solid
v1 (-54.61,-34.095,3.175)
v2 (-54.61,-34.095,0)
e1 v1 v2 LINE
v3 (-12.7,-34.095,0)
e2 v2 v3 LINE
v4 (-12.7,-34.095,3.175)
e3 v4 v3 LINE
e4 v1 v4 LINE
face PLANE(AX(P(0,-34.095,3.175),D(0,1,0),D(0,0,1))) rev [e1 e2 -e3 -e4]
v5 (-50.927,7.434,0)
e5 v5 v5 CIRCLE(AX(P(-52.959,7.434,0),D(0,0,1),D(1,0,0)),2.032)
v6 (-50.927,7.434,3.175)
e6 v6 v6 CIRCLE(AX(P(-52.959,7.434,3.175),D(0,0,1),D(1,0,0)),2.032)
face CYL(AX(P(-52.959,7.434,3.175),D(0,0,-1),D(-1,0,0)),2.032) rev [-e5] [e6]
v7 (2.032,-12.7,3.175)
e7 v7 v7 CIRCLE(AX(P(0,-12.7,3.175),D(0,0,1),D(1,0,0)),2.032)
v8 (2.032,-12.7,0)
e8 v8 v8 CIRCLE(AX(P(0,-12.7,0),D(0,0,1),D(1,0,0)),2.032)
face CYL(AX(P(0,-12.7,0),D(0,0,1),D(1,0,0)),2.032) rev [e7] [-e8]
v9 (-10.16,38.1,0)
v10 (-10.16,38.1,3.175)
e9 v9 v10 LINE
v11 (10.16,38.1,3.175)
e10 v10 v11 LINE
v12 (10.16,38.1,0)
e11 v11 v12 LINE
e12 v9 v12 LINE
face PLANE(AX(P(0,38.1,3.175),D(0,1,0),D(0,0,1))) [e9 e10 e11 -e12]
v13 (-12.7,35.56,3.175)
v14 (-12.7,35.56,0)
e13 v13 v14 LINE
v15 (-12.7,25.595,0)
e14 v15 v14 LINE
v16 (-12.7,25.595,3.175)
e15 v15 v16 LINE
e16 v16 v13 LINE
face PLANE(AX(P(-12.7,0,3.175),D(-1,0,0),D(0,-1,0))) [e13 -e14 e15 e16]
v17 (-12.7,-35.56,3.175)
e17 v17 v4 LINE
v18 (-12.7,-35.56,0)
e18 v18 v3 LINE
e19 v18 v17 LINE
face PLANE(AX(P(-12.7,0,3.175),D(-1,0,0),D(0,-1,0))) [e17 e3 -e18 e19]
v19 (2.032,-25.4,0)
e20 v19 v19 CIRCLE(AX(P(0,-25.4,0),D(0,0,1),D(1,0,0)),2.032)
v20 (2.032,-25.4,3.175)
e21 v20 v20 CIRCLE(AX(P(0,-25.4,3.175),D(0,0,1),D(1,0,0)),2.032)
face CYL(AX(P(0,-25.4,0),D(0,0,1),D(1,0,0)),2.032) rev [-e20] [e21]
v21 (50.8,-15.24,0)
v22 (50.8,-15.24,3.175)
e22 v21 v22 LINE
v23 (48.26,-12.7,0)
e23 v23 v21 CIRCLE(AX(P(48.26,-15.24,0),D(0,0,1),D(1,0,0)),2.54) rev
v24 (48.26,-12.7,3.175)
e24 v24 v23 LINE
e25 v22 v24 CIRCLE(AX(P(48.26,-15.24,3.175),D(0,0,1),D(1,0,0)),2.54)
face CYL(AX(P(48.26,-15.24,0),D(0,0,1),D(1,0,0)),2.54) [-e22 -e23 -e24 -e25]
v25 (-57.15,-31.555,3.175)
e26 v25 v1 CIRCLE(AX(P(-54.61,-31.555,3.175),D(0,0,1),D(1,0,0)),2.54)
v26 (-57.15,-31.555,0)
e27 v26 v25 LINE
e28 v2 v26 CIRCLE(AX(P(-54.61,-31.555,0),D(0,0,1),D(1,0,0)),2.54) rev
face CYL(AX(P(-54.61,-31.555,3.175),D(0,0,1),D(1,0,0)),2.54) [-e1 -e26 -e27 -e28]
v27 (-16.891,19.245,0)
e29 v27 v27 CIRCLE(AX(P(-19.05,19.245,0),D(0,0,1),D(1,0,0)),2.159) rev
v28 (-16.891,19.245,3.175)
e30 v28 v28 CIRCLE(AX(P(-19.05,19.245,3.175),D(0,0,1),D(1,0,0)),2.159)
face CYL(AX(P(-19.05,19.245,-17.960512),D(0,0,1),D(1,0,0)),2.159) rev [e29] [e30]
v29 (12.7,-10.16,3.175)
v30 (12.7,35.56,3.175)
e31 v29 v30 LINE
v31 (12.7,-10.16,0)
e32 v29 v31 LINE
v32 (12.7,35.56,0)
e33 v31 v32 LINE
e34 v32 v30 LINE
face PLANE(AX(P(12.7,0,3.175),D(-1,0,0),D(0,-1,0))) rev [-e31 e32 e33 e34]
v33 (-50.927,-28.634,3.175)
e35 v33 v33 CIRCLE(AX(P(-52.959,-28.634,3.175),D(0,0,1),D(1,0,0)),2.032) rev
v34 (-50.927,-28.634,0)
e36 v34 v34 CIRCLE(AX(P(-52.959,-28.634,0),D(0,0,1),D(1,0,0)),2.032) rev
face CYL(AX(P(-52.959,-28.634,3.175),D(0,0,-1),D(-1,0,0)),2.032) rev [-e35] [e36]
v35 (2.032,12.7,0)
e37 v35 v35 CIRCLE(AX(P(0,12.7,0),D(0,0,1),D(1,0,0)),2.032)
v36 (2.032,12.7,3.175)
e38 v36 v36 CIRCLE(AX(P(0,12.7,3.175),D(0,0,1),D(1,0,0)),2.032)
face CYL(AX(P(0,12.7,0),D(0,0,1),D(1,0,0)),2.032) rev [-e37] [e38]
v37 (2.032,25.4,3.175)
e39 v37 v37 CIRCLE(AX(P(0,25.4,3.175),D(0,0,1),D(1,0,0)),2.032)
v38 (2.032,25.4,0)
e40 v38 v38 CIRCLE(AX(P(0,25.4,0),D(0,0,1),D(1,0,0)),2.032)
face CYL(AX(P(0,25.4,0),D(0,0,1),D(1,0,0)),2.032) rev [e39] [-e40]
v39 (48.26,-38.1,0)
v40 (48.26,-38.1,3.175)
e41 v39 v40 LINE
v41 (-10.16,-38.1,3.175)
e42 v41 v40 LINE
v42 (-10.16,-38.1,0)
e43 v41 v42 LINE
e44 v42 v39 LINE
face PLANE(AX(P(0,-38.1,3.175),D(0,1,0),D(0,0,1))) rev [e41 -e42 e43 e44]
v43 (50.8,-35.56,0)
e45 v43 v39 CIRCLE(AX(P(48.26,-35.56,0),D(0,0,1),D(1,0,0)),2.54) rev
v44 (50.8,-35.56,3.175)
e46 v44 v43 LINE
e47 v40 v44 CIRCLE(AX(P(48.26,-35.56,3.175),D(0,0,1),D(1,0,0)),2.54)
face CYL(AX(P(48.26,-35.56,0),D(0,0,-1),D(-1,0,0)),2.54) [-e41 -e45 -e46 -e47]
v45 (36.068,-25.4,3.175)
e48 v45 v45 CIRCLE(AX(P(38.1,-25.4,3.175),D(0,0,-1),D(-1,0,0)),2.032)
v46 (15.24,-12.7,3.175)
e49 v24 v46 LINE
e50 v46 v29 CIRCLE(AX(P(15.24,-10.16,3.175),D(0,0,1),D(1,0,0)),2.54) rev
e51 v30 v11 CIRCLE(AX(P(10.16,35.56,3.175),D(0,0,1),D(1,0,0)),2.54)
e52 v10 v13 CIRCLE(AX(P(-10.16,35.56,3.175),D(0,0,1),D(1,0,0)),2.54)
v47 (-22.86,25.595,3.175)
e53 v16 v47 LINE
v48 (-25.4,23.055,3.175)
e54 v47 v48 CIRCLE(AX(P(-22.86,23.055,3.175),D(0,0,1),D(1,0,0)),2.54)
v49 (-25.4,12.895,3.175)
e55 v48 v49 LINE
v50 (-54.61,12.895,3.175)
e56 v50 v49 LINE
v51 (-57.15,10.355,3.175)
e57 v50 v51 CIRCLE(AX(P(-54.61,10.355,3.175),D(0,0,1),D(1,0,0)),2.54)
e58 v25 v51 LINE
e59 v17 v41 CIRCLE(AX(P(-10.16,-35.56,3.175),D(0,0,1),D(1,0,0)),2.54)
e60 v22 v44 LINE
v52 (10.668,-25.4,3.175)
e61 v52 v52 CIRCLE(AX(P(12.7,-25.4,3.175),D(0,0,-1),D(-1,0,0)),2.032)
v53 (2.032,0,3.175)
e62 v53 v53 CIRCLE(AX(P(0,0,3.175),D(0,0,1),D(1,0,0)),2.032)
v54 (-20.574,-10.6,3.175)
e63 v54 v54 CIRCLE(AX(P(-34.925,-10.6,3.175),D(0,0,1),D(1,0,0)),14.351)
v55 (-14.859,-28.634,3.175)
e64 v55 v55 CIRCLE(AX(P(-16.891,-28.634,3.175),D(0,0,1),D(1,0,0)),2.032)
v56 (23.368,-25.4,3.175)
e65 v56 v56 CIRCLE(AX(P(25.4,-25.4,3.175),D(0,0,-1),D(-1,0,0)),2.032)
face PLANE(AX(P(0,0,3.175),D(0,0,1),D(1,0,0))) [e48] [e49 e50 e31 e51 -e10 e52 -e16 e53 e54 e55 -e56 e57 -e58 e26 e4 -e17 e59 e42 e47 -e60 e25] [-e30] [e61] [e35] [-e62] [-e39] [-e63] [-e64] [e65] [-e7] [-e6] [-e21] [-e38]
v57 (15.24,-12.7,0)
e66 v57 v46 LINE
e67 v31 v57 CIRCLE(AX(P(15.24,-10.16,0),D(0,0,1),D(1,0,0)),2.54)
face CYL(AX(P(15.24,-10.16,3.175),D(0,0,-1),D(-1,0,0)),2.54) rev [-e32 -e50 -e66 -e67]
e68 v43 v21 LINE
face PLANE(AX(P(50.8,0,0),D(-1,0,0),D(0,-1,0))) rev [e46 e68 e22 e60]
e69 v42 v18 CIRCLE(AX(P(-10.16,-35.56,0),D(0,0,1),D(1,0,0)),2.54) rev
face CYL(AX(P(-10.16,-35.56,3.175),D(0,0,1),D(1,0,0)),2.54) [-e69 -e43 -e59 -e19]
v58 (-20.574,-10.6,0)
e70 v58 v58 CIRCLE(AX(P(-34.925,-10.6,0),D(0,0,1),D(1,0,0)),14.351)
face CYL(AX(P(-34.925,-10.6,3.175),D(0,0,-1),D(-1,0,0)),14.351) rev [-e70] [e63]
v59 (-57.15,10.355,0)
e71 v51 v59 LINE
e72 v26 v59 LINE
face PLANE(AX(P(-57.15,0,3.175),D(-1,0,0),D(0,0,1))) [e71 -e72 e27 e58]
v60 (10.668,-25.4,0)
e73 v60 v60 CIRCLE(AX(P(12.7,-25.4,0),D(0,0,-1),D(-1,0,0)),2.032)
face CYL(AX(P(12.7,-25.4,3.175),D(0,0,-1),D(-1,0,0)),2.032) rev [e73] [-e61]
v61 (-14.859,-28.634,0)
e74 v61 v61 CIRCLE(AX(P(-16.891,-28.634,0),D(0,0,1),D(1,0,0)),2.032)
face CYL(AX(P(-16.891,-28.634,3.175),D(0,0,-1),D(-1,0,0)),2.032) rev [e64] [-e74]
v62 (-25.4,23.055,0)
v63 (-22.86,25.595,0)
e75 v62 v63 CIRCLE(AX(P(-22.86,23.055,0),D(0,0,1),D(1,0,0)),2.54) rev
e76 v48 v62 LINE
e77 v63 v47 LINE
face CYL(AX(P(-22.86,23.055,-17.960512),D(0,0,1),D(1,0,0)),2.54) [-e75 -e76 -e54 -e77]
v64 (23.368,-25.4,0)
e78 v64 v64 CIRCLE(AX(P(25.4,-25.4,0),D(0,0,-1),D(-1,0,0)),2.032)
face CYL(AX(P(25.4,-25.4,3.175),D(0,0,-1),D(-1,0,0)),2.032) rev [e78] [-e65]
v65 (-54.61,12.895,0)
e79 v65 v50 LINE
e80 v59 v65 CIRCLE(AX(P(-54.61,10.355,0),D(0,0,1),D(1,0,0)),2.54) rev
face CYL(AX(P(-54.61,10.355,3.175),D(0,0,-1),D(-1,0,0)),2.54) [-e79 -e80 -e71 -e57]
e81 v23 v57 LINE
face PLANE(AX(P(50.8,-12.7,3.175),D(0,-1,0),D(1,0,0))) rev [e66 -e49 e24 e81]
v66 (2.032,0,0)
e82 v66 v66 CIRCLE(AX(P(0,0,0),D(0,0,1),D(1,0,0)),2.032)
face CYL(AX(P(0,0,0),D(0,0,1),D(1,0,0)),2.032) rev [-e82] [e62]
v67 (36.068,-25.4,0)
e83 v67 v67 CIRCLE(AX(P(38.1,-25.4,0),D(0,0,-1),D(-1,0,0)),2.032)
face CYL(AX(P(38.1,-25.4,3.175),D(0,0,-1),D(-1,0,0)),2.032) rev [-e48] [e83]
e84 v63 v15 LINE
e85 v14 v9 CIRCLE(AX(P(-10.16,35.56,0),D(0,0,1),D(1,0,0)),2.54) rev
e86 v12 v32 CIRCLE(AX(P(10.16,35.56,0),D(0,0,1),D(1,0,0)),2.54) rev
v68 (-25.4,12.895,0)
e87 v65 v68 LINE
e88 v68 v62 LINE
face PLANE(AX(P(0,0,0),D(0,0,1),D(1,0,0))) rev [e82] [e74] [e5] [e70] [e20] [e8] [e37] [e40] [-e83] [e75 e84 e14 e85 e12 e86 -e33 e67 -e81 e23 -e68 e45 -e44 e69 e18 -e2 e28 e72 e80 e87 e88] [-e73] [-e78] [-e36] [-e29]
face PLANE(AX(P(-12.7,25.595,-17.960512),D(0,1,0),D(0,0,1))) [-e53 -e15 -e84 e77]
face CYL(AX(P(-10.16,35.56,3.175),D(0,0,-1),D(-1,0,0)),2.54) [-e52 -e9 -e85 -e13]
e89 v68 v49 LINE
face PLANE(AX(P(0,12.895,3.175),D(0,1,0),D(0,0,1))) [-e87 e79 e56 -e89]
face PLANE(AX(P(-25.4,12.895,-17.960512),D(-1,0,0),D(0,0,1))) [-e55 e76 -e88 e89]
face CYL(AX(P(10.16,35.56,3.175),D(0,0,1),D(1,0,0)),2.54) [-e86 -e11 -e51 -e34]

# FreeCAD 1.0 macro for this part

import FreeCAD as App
import Part
import Sketcher

V = App.Vector
Q = App.Units.Quantity


def edges_at(feature, points):
    """Names of the edges that pass closest to the given points."""
    edges = feature.Shape.Edges
    near = lambda p: min(range(len(edges)), key=lambda i: edges[i].distToShape(Part.Vertex(*p))[0])
    return sorted({f"Edge{near(p) + 1}" for p in points})


def add_polygon(sketch, points):
    """Adds a closed chain of lines whose ends are joined by coincident constraints."""
    first, n = sketch.GeometryCount, len(points)
    for a, b in zip(points, points[1:] + points[:1]):
        sketch.addGeometry(Part.LineSegment(App.Vector(*a, 0), App.Vector(*b, 0)), False)
    for i in range(n):
        sketch.addConstraint(Sketcher.Constraint("Coincident", first + i, 2, first + (i + 1) % n, 1))

doc = App.newDocument("Part")
params = doc.addObject("Spreadsheet::Sheet", "Params")
for row, (alias, value) in enumerate([
    ("sketch1_diameter", "0.16 in"),
    ("sketch1_diameter2", "1.13 in"),
    ("sketch1_width", "1 in"),
    ("sketch1_height", "3 in"),
    ("sketch1_width2", "1.75 in"),
    ("pad1_length", "0.125 in"),
    ("sketch2_diameter", "0.16 in"),
    ("sketch3_width", "1 in"),
    ("sketch3_height", "0.125 in"),
    ("pad2_length", "1.5 in"),
    ("sketch4_diameter", "0.16 in"),
    ("fillet_radius", "0.1 in"),
    ("sketch5_diameter", "0.17 in"),
    ("sketch5_width", "0.5 in"),
    ("pad3_length", "0.125 in"),
    ("fillet2_radius", "0.1 in"),
], start=1):
    params.set(f"A{row}", alias)
    params.set(f"B{row}", "=" + value)
    params.setAlias(f"B{row}", alias)

body = doc.addObject("PartDesign::Body", "Body")

# Sketch on XY plane
sketch1 = body.newObject("Sketcher::SketchObject", "Sketch")
sketch1.AttachmentSupport = (doc.getObject("XY_Plane"), [""])
sketch1.MapMode = "FlatFace"
add_polygon(sketch1, [(-57.1, -34.1), (-12.7, -34.1), (-12.7, -38.1), (12.7, -38.1), (12.7, 38.1), (-12.7, 38.1), (-12.7, 12.9), (-57.1, 12.9)])  # lines 0-7
sketch1.addGeometry(Part.Circle(V(-53, -28.6, 0), V(0, 0, 1), 2), False)  # 8
sketch1.addGeometry(Part.Circle(V(-16.9, -28.6, 0), V(0, 0, 1), 2), False)  # 9
sketch1.addGeometry(Part.Circle(V(-53, 7.4, 0), V(0, 0, 1), 2), False)  # 10
sketch1.addGeometry(Part.Circle(V(-34.9, -10.6, 0), V(0, 0, 1), 14.4), False)  # 11
sketch1.addConstraint([
    Sketcher.Constraint("Horizontal", 0),
    Sketcher.Constraint("Vertical", 1),
    Sketcher.Constraint("Horizontal", 2),
    Sketcher.Constraint("Vertical", 3),
    Sketcher.Constraint("Horizontal", 4),
    Sketcher.Constraint("Vertical", 5),
    Sketcher.Constraint("Horizontal", 6),
    Sketcher.Constraint("Vertical", 7),
    Sketcher.Constraint("Equal", 8, 9),
    Sketcher.Constraint("Equal", 9, 10),
    Sketcher.Constraint("Symmetric", 1, 2, 3, 2, -1, 1),
    Sketcher.Constraint("Horizontal", 8, 3, 9, 3),
    Sketcher.Constraint("Vertical", 8, 3, 10, 3),
    Sketcher.Constraint("Vertical", 1, 2, 4, 2),
    Sketcher.Constraint("Diameter", 8, Q("0.16 in")),
    Sketcher.Constraint("Diameter", 11, Q("1.13 in")),
    Sketcher.Constraint("DistanceX", 2, 1, 2, 2, Q("1 in")),
    Sketcher.Constraint("DistanceY", 3, 1, 3, 2, Q("3 in")),
    Sketcher.Constraint("DistanceX", 0, 1, 0, 2, Q("1.75 in")),
    Sketcher.Constraint("DistanceY", 7, 2, 7, 1, Q("1.85 in")),
    Sketcher.Constraint("DistanceX", 8, 3, 9, 3, Q("1.42 in")),
    Sketcher.Constraint("DistanceY", 8, 3, 10, 3, Q("1.42 in")),
    Sketcher.Constraint("DistanceX", 11, 3, 9, 3, Q("0.71 in")),
    Sketcher.Constraint("DistanceY", 9, 3, 11, 3, Q("0.71 in")),
    Sketcher.Constraint("DistanceX", 8, 3, -1, 1, Q("2.085 in")),
    Sketcher.Constraint("DistanceY", 0, 2, 9, 3, Q("0.215 in")),
    Sketcher.Constraint("DistanceY", 1, 2, 1, 1, Q("4.005 mm")),
])
sketch1.setExpression("Constraints[22]", "Params.sketch1_diameter")
sketch1.setExpression("Constraints[23]", "Params.sketch1_diameter2")
sketch1.setExpression("Constraints[24]", "Params.sketch1_width")
sketch1.setExpression("Constraints[25]", "Params.sketch1_height")
sketch1.setExpression("Constraints[26]", "Params.sketch1_width2")
pad1 = body.newObject("PartDesign::Pad", "Pad")
pad1.Profile = sketch1
pad1.setExpression("Length", "Params.pad1_length")

# Sketch on XY plane
sketch2 = body.newObject("Sketcher::SketchObject", "Sketch001")
sketch2.AttachmentSupport = (doc.getObject("XY_Plane"), [""])
sketch2.MapMode = "FlatFace"
sketch2.AttachmentOffset = App.Placement(V(0, 0, 0.125 * 25.4), App.Rotation())
sketch2.addGeometry([
    Part.Circle(V(0, 0, 0), V(0, 0, 1), 2),  # 0
    Part.Circle(V(0, 12.7, 0), V(0, 0, 1), 2),  # 1
    Part.Circle(V(0, 25.4, 0), V(0, 0, 1), 2),  # 2
    Part.Circle(V(0, -12.7, 0), V(0, 0, 1), 2),  # 3
    Part.Circle(V(0, -25.4, 0), V(0, 0, 1), 2),  # 4
], False)
sketch2.addConstraint([
    Sketcher.Constraint("Coincident", 0, 3, -1, 1),
    Sketcher.Constraint("Equal", 0, 1),
    Sketcher.Constraint("Equal", 1, 2),
    Sketcher.Constraint("Equal", 2, 3),
    Sketcher.Constraint("Equal", 3, 4),
    Sketcher.Constraint("Symmetric", 1, 3, 3, 3, -1, 1),
    Sketcher.Constraint("Symmetric", 2, 3, 4, 3, -1, 1),
    Sketcher.Constraint("PointOnObject", 1, 3, -2),
    Sketcher.Constraint("PointOnObject", 2, 3, -2),
    Sketcher.Constraint("Diameter", 0, Q("0.16 in")),
    Sketcher.Constraint("DistanceY", -1, 1, 2, 3, Q("1 in")),
    Sketcher.Constraint("DistanceY", 3, 3, 1, 3, Q("1 in")),
])
sketch2.setExpression("Constraints[9]", "Params.sketch2_diameter")
pocket1 = body.newObject("PartDesign::Pocket", "Pocket")
pocket1.Profile = sketch2
pocket1.Type = "ThroughAll"

# Sketch on YZ plane
sketch3 = body.newObject("Sketcher::SketchObject", "Sketch002")
sketch3.AttachmentSupport = (doc.getObject("YZ_Plane"), [""])
sketch3.MapMode = "FlatFace"
sketch3.AttachmentOffset = App.Placement(V(0, 0, 0.5 * 25.4), App.Rotation())
add_polygon(sketch3, [(-12.7, 3.2), (-38.1, 3.2), (-38.1, 0), (-12.7, 0)])  # lines 0-3
sketch3.addConstraint([
    Sketcher.Constraint("Horizontal", 0),
    Sketcher.Constraint("Vertical", 1),
    Sketcher.Constraint("Horizontal", 2),
    Sketcher.Constraint("Vertical", 3),
    Sketcher.Constraint("PointOnObject", 1, 2, -1),
    Sketcher.Constraint("DistanceX", 0, 2, 0, 1, Q("1 in")),
    Sketcher.Constraint("DistanceX", 0, 2, -1, 1, Q("1.5 in")),
    Sketcher.Constraint("DistanceY", 1, 2, 1, 1, Q("0.125 in")),
])
sketch3.setExpression("Constraints[9]", "Params.sketch3_width")
sketch3.setExpression("Constraints[11]", "Params.sketch3_height")
pad2 = body.newObject("PartDesign::Pad", "Pad001")
pad2.Profile = sketch3
pad2.setExpression("Length", "Params.pad2_length")

# Sketch on XY plane
sketch4 = body.newObject("Sketcher::SketchObject", "Sketch003")
sketch4.AttachmentSupport = (doc.getObject("XY_Plane"), [""])
sketch4.MapMode = "FlatFace"
sketch4.addGeometry([
    Part.Circle(V(0, -25.4, 0), V(0, 0, 1), 2),
    Part.Circle(V(12.7, -25.4, 0), V(0, 0, 1), 2),
    Part.Circle(V(25.4, -25.4, 0), V(0, 0, 1), 2),
    Part.Circle(V(38.1, -25.4, 0), V(0, 0, 1), 2),
], False)
sketch4.addConstraint([
    Sketcher.Constraint("Equal", 0, 1),
    Sketcher.Constraint("Equal", 1, 2),
    Sketcher.Constraint("Equal", 2, 3),
    Sketcher.Constraint("PointOnObject", 0, 3, -2),
    Sketcher.Constraint("Horizontal", 0, 3, 1, 3),
    Sketcher.Constraint("Horizontal", 1, 3, 2, 3),
    Sketcher.Constraint("Horizontal", 2, 3, 3, 3),
    Sketcher.Constraint("Diameter", 0, Q("0.16 in")),
    Sketcher.Constraint("DistanceY", 0, 3, -1, 1, Q("1 in")),
    Sketcher.Constraint("DistanceX", -1, 1, 2, 3, Q("1 in")),
    Sketcher.Constraint("DistanceX", 1, 3, 3, 3, Q("1 in")),
    Sketcher.Constraint("DistanceX", -1, 1, 1, 3, Q("0.5 in")),
])
sketch4.setExpression("Constraints[7]", "Params.sketch4_diameter")
pocket2 = body.newObject("PartDesign::Pocket", "Pocket001")
pocket2.Profile = sketch4
pocket2.Type = "ThroughAll"
pocket2.Reversed = True
doc.recompute()

fillet = body.newObject("PartDesign::Fillet", "Fillet")
fillet.Base = (pocket2, edges_at(pocket2, [
    (-12.7, -38.1, 1.587),
    (-57.15, -34.095, 1.587),
    (-57.15, 12.895, 1.587),
    (-12.7, 12.895, 1.587),
    (-12.7, 38.1, 1.587),
    (12.7, 38.1, 1.587),
    (12.7, -12.7, 1.587),
    (50.8, -38.1, 1.587),
    (50.8, -12.7, 1.587),
]))
fillet.setExpression("Radius", "Params.fillet_radius")

# Sketch on XY plane
sketch5 = body.newObject("Sketcher::SketchObject", "Sketch004")
sketch5.AttachmentSupport = (doc.getObject("XY_Plane"), [""])
sketch5.MapMode = "FlatFace"
sketch5.AttachmentOffset = App.Placement(V(0, 0, 0.125 * 25.4), App.Rotation())
add_polygon(sketch5, [(-25.4, 25.6), (-25.4, 12.9), (-12.7, 12.9), (-12.7, 25.6)])  # lines 0-3
sketch5.addGeometry(Part.Circle(V(-19.1, 19.2, 0), V(0, 0, 1), 2.2), False)  # 4
sketch5.addConstraint([
    Sketcher.Constraint("Vertical", 0),
    Sketcher.Constraint("Horizontal", 1),
    Sketcher.Constraint("Vertical", 2),
    Sketcher.Constraint("Horizontal", 3),
    Sketcher.Constraint("Equal", 3, 0),
    Sketcher.Constraint("Diameter", 4, Q("0.17 in")),
    Sketcher.Constraint("DistanceX", 1, 1, 1, 2, Q("0.5 in")),
    Sketcher.Constraint("DistanceX", 0, 2, -1, 1, Q("1 in")),
    Sketcher.Constraint("DistanceX", 4, 3, -1, 1, Q("0.75 in")),
    Sketcher.Constraint("DistanceY", 0, 2, 4, 3, Q("0.25 in")),
    Sketcher.Constraint("DistanceY", -1, 1, 4, 3, Q("19.245 mm")),
])
sketch5.setExpression("Constraints[9]", "Params.sketch5_diameter")
sketch5.setExpression("Constraints[10]", "Params.sketch5_width")
pad3 = body.newObject("PartDesign::Pad", "Pad002")
pad3.Profile = sketch5
pad3.setExpression("Length", "Params.pad3_length")
pad3.Reversed = True
doc.recompute()

fillet2 = body.newObject("PartDesign::Fillet", "Fillet001")
fillet2.Base = (pad3, edges_at(pad3, [(-25.4, 25.595, 1.587)]))
fillet2.setExpression("Radius", "Params.fillet2_radius")

doc.recompute()
